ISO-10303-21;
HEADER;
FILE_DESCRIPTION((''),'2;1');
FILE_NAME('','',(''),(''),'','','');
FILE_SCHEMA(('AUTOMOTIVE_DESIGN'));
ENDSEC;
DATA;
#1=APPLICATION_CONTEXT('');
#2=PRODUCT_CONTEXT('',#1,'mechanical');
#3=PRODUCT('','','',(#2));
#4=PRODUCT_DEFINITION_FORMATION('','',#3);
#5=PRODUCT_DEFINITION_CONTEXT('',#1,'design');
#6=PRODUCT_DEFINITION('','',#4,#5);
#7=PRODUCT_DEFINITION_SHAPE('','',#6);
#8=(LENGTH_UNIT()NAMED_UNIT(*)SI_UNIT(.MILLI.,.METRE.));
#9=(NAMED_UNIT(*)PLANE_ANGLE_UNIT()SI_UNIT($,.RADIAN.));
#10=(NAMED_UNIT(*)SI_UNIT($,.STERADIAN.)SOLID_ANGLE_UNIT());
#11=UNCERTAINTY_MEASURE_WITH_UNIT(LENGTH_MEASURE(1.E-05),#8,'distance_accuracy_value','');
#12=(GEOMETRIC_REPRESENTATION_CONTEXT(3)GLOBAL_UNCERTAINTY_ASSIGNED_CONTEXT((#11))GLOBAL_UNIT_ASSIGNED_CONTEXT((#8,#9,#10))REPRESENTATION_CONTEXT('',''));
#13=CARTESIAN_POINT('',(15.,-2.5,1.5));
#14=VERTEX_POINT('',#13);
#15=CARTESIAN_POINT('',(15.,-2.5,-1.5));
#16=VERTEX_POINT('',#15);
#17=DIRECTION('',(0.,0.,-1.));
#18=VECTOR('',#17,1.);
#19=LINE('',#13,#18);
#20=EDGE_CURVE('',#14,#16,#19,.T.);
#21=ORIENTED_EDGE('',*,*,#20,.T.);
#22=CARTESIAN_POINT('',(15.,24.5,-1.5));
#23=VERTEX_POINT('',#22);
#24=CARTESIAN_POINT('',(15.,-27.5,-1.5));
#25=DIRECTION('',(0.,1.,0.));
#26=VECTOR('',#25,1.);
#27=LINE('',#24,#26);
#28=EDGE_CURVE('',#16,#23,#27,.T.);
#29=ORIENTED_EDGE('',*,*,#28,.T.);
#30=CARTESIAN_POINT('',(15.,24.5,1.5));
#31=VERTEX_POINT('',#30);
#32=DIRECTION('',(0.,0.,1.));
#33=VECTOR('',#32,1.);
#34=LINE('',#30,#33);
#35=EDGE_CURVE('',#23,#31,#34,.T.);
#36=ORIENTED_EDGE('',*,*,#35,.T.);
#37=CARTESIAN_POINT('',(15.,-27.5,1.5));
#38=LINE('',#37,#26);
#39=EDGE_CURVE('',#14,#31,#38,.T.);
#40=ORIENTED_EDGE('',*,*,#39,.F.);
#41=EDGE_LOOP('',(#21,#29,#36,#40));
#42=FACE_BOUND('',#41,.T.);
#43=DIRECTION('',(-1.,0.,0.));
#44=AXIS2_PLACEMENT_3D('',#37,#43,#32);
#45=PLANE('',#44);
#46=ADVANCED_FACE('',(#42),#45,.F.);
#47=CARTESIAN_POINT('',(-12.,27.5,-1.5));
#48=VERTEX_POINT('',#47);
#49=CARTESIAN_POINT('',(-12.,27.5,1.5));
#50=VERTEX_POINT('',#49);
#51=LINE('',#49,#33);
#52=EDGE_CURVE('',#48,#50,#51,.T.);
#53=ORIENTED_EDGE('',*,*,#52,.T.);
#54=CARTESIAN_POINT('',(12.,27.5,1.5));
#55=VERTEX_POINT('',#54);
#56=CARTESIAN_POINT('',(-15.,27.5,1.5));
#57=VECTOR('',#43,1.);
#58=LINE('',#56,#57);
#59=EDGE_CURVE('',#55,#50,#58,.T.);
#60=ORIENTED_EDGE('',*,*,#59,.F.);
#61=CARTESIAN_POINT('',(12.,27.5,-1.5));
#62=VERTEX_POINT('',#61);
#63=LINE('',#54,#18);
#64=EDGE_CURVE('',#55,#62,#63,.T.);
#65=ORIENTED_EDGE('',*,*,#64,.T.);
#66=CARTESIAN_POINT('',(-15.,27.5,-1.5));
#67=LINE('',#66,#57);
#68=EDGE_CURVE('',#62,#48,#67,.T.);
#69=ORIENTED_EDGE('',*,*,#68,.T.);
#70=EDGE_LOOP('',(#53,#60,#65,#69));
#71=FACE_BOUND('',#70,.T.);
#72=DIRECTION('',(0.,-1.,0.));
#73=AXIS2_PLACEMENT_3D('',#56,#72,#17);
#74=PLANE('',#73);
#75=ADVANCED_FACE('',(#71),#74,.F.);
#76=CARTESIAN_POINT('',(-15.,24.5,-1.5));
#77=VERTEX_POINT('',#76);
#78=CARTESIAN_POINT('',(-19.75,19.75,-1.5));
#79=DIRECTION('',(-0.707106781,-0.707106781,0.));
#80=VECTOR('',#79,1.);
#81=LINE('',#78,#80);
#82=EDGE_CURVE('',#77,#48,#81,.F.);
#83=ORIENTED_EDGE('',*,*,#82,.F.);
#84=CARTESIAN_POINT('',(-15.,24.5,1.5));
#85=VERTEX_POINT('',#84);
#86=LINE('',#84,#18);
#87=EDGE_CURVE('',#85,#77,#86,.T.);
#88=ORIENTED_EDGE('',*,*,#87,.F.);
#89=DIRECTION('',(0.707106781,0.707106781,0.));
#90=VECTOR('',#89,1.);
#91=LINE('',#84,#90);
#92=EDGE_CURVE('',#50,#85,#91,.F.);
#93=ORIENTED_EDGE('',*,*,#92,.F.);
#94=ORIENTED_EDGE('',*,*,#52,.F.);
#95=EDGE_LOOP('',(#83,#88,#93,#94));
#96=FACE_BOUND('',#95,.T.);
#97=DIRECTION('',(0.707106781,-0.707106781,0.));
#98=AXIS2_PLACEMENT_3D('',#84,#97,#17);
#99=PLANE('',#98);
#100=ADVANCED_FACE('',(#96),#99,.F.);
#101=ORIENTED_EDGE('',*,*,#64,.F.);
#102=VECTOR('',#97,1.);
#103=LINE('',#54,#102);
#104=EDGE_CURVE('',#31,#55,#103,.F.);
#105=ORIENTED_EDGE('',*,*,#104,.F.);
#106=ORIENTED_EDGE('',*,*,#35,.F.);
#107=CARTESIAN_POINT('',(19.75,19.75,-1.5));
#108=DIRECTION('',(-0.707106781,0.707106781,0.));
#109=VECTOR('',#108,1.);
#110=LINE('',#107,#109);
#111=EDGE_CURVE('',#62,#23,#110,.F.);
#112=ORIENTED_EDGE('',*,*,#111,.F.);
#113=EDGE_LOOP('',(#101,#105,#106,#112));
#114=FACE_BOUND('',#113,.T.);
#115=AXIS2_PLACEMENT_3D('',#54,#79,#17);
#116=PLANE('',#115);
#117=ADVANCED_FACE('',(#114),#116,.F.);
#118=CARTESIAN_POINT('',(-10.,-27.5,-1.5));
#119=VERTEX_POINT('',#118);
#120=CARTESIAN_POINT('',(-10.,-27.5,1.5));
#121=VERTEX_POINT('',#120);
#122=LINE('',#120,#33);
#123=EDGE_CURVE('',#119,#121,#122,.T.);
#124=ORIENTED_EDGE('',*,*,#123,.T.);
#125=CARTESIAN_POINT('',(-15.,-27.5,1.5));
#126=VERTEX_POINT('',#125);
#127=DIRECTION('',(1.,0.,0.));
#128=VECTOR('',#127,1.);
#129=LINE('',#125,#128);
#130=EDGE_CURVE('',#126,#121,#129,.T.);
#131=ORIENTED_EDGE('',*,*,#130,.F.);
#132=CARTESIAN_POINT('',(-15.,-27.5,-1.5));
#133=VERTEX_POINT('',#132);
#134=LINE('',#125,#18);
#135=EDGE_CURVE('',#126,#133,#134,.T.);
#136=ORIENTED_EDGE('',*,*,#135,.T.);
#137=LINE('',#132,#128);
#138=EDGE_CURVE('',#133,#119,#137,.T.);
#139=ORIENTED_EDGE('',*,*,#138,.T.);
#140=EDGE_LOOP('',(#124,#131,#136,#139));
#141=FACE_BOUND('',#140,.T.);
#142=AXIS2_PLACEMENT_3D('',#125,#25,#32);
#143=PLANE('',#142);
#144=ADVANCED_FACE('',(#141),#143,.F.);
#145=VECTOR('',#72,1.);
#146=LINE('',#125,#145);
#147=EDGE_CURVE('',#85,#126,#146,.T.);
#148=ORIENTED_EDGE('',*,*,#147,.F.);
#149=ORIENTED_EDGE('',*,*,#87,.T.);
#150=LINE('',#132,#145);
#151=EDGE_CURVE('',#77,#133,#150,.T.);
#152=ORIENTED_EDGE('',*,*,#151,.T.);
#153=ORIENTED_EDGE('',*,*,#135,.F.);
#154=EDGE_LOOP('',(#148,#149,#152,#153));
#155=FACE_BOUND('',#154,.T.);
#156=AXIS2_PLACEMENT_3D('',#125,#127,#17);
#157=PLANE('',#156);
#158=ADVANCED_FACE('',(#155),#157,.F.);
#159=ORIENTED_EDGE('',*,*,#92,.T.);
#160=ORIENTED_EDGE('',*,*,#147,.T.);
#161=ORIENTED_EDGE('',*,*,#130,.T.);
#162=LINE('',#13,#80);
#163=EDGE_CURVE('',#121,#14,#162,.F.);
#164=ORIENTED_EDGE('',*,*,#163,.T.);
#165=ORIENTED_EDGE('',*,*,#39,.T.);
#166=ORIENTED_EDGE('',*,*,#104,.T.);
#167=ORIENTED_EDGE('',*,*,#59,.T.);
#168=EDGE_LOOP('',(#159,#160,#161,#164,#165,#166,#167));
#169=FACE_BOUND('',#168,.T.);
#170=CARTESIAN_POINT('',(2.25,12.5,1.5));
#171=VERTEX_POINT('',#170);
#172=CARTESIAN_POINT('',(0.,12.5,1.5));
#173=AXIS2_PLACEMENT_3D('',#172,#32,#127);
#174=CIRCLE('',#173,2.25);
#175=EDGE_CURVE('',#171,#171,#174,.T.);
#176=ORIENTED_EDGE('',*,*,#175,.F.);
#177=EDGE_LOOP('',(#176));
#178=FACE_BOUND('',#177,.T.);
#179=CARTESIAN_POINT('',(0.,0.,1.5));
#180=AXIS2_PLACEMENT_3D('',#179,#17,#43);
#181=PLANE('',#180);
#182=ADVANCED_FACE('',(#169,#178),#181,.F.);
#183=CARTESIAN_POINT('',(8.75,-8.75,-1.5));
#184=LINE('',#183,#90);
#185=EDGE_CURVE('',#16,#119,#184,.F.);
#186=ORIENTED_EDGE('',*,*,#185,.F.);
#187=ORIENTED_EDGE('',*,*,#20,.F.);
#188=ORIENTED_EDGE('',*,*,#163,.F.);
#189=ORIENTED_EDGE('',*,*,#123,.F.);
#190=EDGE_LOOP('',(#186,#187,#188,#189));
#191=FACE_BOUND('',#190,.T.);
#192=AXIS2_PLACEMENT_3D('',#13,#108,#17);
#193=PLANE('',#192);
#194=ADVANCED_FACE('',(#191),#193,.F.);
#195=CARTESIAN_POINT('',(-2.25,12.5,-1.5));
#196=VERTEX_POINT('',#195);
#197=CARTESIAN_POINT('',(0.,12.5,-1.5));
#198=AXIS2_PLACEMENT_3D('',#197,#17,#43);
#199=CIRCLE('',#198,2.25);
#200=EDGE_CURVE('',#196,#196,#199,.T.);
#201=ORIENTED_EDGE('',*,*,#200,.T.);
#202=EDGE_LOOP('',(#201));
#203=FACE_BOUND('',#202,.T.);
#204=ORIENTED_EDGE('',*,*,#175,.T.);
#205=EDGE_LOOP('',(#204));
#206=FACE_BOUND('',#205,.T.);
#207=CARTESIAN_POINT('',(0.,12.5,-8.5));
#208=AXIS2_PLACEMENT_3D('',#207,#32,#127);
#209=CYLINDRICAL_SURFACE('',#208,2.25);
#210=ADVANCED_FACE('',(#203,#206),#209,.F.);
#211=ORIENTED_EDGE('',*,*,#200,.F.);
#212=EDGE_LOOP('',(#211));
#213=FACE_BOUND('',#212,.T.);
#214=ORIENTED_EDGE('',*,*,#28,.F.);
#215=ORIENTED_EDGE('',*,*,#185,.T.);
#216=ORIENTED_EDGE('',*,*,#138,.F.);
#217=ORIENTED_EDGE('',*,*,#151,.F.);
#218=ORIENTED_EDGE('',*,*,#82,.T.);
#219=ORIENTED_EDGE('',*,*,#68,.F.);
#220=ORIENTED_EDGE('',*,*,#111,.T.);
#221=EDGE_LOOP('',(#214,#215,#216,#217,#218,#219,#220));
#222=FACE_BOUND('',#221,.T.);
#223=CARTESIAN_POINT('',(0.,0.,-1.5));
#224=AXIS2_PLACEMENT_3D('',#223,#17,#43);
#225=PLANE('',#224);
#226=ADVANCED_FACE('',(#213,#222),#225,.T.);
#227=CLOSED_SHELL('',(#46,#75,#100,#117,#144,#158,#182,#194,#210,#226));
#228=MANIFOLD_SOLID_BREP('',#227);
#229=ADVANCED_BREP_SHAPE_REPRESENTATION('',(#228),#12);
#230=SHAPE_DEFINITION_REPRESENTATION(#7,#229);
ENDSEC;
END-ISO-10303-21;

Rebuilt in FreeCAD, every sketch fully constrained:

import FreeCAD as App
import Part
import Sketcher
Q = App.Units.Quantity


def edges_at(feature, points):
    """Names of the edges that pass closest to the given points."""
    edges = feature.Shape.Edges
    near = lambda p: min(range(len(edges)), key=lambda i: edges[i].distToShape(Part.Vertex(*p))[0])
    return sorted({f"Edge{near(p) + 1}" for p in points})


def add_polygon(sketch, points):
    """Adds a closed chain of lines whose ends are joined by coincident constraints."""
    first, n = sketch.GeometryCount, len(points)
    for a, b in zip(points, points[1:] + points[:1]):
        sketch.addGeometry(Part.LineSegment(App.Vector(*a, 0), App.Vector(*b, 0)), False)
    for i in range(n):
        sketch.addConstraint(Sketcher.Constraint("Coincident", first + i, 2, first + (i + 1) % n, 1))

doc = App.newDocument("Part")
body = doc.addObject("PartDesign::Body", "Body")

# Sketch on XY plane
sketch1 = body.newObject("Sketcher::SketchObject", "Sketch")
sketch1.AttachmentSupport = (doc.getObject("XY_Plane"), [""])
sketch1.MapMode = "FlatFace"
add_polygon(sketch1, [(-15, 28), (-15, -28), (15, -28), (15, 28)])  # lines 0-3
sketch1.addConstraint(Sketcher.Constraint("Vertical", 0))
sketch1.addConstraint(Sketcher.Constraint("Horizontal", 1))
sketch1.addConstraint(Sketcher.Constraint("Vertical", 2))
sketch1.addConstraint(Sketcher.Constraint("Horizontal", 3))
sketch1.addConstraint(Sketcher.Constraint("Symmetric", 0, 2, 2, 2, -1, 1))
sketch1.addConstraint(Sketcher.Constraint("DistanceX", 1, 1, 1, 2, Q("30 mm")))
sketch1.addConstraint(Sketcher.Constraint("DistanceY", 0, 2, 0, 1, Q("55 mm")))
pad1 = body.newObject("PartDesign::Pad", "Pad")
pad1.Profile = sketch1
pad1.Length = 3
pad1.Midplane = True
doc.recompute()

chamfer = body.newObject("PartDesign::Chamfer", "Chamfer")
chamfer.Base = (pad1, edges_at(pad1, [(-15, 27.5, 0), (15, 27.5, 0)]))
chamfer.Size = 3

# Sketch on XY plane
sketch2 = body.newObject("Sketcher::SketchObject", "Sketch001")
sketch2.AttachmentSupport = (doc.getObject("XY_Plane"), [""])
sketch2.MapMode = "FlatFace"
sketch2.AttachmentOffset = App.Placement(App.Vector(0, 0, 1.5), App.Rotation())
sketch2.addGeometry(Part.Circle(App.Vector(0, 12.5, 0), App.Vector(0, 0, 1), 2.2), False)
sketch2.addConstraint(Sketcher.Constraint("PointOnObject", 0, 3, -2))
sketch2.addConstraint(Sketcher.Constraint("Diameter", 0, Q("4.5 mm")))
sketch2.addConstraint(Sketcher.Constraint("DistanceY", -1, 1, 0, 3, Q("12.5 mm")))
pocket1 = body.newObject("PartDesign::Pocket", "Pocket")
pocket1.Profile = sketch2
pocket1.Length = 10
doc.recompute()

chamfer2 = body.newObject("PartDesign::Chamfer", "Chamfer001")
chamfer2.Base = (pocket1, edges_at(pocket1, [(15, -27.5, 0)]))
chamfer2.Size = 25

doc.recompute()
